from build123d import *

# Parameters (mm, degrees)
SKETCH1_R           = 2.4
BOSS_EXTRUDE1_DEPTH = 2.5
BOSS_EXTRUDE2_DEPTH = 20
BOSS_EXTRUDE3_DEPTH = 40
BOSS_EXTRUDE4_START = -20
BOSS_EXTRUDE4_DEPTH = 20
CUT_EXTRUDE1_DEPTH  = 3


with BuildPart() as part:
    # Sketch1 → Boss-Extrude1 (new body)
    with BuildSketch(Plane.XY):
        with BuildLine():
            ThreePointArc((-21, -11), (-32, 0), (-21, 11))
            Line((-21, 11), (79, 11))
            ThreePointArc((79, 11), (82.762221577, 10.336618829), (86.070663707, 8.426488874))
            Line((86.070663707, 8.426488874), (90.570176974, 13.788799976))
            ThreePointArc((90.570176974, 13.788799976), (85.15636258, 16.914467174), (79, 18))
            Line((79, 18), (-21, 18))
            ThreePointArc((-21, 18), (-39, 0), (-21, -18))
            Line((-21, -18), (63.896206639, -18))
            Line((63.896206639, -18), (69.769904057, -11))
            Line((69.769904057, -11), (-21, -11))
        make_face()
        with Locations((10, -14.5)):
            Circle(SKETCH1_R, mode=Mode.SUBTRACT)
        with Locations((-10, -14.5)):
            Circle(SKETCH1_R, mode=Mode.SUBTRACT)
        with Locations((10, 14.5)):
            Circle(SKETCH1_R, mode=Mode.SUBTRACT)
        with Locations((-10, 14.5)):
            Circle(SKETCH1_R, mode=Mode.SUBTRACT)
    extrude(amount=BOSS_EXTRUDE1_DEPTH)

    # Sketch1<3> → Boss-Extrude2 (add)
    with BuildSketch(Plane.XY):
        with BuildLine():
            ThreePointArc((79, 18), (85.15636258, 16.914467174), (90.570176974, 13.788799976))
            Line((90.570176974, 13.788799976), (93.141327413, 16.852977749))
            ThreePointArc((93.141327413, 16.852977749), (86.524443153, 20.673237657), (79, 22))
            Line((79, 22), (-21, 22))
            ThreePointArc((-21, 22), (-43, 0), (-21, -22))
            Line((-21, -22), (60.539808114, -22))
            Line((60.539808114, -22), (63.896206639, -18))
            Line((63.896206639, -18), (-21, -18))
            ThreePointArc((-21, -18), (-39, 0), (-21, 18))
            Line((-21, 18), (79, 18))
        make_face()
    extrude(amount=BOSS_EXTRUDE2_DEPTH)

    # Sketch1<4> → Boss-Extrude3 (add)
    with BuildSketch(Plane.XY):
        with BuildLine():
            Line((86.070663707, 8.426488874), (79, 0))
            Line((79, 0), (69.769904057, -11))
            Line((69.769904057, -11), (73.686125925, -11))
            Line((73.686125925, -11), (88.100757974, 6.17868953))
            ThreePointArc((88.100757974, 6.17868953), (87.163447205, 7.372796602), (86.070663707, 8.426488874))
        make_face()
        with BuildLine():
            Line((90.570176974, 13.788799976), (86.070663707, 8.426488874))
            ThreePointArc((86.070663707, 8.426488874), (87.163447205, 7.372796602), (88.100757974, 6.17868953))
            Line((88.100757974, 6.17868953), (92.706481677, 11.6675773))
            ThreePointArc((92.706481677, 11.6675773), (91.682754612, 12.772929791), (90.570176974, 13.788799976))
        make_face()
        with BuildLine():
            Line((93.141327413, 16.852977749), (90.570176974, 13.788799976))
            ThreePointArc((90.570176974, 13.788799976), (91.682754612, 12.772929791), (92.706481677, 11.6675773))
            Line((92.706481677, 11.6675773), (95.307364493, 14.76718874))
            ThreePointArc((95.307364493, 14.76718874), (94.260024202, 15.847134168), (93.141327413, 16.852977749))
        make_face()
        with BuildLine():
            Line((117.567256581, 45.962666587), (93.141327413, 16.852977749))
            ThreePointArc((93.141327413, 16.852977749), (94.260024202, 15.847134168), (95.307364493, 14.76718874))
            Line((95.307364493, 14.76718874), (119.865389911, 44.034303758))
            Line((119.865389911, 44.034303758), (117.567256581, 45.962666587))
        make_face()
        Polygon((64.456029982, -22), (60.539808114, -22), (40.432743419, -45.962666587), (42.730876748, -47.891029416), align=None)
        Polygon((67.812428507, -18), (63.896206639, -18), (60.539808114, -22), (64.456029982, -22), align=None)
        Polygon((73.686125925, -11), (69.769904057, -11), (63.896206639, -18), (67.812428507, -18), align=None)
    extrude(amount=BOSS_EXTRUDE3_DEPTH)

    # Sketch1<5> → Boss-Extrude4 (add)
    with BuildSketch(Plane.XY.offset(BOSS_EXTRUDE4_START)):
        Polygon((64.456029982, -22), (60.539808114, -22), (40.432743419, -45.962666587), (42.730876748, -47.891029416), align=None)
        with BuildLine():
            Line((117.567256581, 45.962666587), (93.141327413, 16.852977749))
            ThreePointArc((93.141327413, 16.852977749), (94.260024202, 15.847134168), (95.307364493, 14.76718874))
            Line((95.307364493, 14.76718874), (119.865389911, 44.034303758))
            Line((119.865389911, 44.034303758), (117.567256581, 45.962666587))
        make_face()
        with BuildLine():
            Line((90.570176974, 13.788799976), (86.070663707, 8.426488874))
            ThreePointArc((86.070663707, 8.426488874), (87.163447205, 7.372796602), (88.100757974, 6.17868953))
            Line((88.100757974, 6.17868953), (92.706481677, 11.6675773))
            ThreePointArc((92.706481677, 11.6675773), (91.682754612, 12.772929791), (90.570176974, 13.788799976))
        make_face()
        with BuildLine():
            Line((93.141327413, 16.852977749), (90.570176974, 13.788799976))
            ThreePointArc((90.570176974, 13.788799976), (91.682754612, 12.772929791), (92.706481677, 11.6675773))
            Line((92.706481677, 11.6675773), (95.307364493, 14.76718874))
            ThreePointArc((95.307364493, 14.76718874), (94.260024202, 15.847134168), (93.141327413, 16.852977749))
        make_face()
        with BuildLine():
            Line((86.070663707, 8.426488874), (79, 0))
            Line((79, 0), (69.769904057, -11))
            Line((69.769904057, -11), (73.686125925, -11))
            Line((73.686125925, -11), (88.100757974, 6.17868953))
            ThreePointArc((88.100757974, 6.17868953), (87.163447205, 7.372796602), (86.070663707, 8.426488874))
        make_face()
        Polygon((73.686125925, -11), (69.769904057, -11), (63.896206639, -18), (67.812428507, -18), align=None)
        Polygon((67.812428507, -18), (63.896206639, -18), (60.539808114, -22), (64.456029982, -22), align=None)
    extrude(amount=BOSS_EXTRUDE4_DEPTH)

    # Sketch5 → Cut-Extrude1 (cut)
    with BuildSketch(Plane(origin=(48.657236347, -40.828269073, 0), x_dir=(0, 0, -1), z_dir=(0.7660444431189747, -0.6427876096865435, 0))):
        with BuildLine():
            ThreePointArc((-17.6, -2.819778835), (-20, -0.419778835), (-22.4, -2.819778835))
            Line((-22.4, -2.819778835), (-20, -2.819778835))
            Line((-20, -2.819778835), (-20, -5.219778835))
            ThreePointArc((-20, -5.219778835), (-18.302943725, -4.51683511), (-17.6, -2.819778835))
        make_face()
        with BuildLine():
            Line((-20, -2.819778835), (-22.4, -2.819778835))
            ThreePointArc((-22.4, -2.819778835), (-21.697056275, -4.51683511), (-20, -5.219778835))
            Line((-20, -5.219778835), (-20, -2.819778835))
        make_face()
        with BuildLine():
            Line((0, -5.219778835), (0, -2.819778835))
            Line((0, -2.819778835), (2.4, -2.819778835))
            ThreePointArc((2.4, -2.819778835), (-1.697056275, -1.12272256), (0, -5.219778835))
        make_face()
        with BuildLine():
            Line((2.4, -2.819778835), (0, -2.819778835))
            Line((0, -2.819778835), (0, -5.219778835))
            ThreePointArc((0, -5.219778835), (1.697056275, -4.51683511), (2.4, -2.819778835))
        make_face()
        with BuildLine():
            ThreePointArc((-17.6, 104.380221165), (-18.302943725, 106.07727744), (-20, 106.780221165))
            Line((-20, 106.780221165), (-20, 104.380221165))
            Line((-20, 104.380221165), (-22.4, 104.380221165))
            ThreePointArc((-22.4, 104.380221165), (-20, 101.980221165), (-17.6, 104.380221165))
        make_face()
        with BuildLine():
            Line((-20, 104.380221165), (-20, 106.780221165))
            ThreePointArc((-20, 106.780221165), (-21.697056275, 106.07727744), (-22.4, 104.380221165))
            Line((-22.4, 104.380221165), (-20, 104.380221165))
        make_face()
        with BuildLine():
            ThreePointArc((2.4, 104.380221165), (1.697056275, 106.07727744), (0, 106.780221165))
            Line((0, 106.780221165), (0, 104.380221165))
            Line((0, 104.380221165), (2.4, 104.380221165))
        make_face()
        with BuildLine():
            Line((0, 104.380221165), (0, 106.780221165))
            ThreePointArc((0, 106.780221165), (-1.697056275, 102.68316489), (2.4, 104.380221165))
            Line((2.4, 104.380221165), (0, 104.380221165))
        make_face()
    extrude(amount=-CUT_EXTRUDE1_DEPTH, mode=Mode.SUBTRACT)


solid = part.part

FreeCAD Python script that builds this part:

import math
import FreeCAD as App
import Part
import Sketcher
Q = App.Units.Quantity


def add_polygon(sketch, points):
    """Adds a closed chain of lines whose ends are joined by coincident constraints."""
    first, n = sketch.GeometryCount, len(points)
    for a, b in zip(points, points[1:] + points[:1]):
        sketch.addGeometry(Part.LineSegment(App.Vector(*a, 0), App.Vector(*b, 0)), False)
    for i in range(n):
        sketch.addConstraint(Sketcher.Constraint("Coincident", first + i, 2, first + (i + 1) % n, 1))

doc = App.newDocument("Part")
body = doc.addObject("PartDesign::Body", "Body")

# Sketch on XY plane
sketch1 = doc.addObject("Sketcher::SketchObject", "Sketch")
body.addObject(sketch1)
sketch1.AttachmentSupport = (doc.XY_Plane, [""])
sketch1.MapMode = "FlatFace"
sketch1.addGeometry([
    Part.ArcOfCircle(Part.Circle(App.Vector(-21, 0, 0), App.Vector(0, 0, 1), 11), math.radians(90), math.radians(270)),  # 0
    Part.LineSegment(App.Vector(-21, 11, 0), App.Vector(79, 11, 0)),  # 1
    Part.ArcOfCircle(Part.Circle(App.Vector(79, 0, 0), App.Vector(0, 0, 1), 11), math.radians(50), math.radians(90)),  # 2
    Part.LineSegment(App.Vector(86.070664, 8.426489, 0), App.Vector(90.570177, 13.7888, 0)),  # 3
    Part.ArcOfCircle(Part.Circle(App.Vector(79, 0, 0), App.Vector(0, 0, 1), 18), math.radians(50), math.radians(90)),  # 4
    Part.LineSegment(App.Vector(79, 18, 0), App.Vector(-21, 18, 0)),  # 5
    Part.ArcOfCircle(Part.Circle(App.Vector(-21, 0, 0), App.Vector(0, 0, 1), 18), math.radians(90), math.radians(270)),  # 6
    Part.LineSegment(App.Vector(-21, -18, 0), App.Vector(63.896207, -18, 0)),  # 7
    Part.LineSegment(App.Vector(63.896207, -18, 0), App.Vector(69.769904, -11, 0)),  # 8
    Part.LineSegment(App.Vector(69.769904, -11, 0), App.Vector(-21, -11, 0)),  # 9
    Part.Circle(App.Vector(-10, -14.5, 0), App.Vector(0, 0, 1), 2.4),  # 10
    Part.Circle(App.Vector(10, -14.5, 0), App.Vector(0, 0, 1), 2.4),  # 11
    Part.Circle(App.Vector(-10, 14.5, 0), App.Vector(0, 0, 1), 2.4),  # 12
    Part.Circle(App.Vector(10, 14.5, 0), App.Vector(0, 0, 1), 2.4),  # 13
], False)
sketch1.addConstraint([
    Sketcher.Constraint("Tangent", 0, 1, 1, 1),
    Sketcher.Constraint("Tangent", 1, 2, 2, 2),
    Sketcher.Constraint("Coincident", 2, 1, 3, 1),
    Sketcher.Constraint("Coincident", 3, 2, 4, 1),
    Sketcher.Constraint("Tangent", 4, 2, 5, 1),
    Sketcher.Constraint("Tangent", 5, 2, 6, 1),
    Sketcher.Constraint("Tangent", 6, 2, 7, 1),
    Sketcher.Constraint("Coincident", 7, 2, 8, 1),
    Sketcher.Constraint("Coincident", 8, 2, 9, 1),
    Sketcher.Constraint("Tangent", 9, 2, 0, 2),
    Sketcher.Constraint("Horizontal", 1),
    Sketcher.Constraint("Horizontal", 5),
    Sketcher.Constraint("Horizontal", 7),
    Sketcher.Constraint("Horizontal", 9),
    Sketcher.Constraint("Coincident", 4, 3, 2, 3),
    Sketcher.Constraint("Coincident", 6, 3, 0, 3),
    Sketcher.Constraint("Equal", 0, 2),
    Sketcher.Constraint("Equal", 10, 11),
    Sketcher.Constraint("Equal", 11, 12),
    Sketcher.Constraint("Equal", 12, 13),
    Sketcher.Constraint("Symmetric", 11, 3, 12, 3, -1, 1),
    Sketcher.Constraint("Symmetric", 10, 3, 13, 3, -1, 1),
    Sketcher.Constraint("Symmetric", 10, 3, 11, 3, -2),
    Sketcher.Constraint("PointOnObject", 0, 3, -1),
    Sketcher.Constraint("Parallel", 3, 8),
    Sketcher.Constraint("Radius", 0, Q("11 mm")),
    Sketcher.Constraint("Radius", 4, Q("18 mm")),
    Sketcher.Constraint("Diameter", 10, Q("4.8 mm")),
    Sketcher.Constraint("DistanceX", 1, 1, 1, 2, Q("100 mm")),
    Sketcher.Constraint("Angle", 3, Q("50 deg")),
    Sketcher.Constraint("DistanceX", 0, 3, -1, 1, Q("21 mm")),
    Sketcher.Constraint("DistanceX", 10, 3, -1, 1, Q("10 mm")),
    Sketcher.Constraint("DistanceY", 10, 3, 12, 3, Q("29 mm")),
    Sketcher.Constraint("DistanceY", -1, 1, 3, 2, Q("13.7888 mm")),
    Sketcher.Constraint("DistanceX", 7, 1, 7, 2, Q("84.896207 mm")),
])
pad1 = doc.addObject("PartDesign::Pad", "Pad")
body.addObject(pad1)
pad1.Profile = sketch1
pad1.Length = 2.5

# Sketch on XY plane
sketch2 = doc.addObject("Sketcher::SketchObject", "Sketch001")
body.addObject(sketch2)
sketch2.AttachmentSupport = (doc.XY_Plane, [""])
sketch2.MapMode = "FlatFace"
sketch2.addGeometry([
    Part.ArcOfCircle(Part.Circle(App.Vector(79, 0, 0), App.Vector(0, 0, 1), 18), math.radians(50), math.radians(90)),  # 0
    Part.LineSegment(App.Vector(90.570177, 13.7888, 0), App.Vector(93.141327, 16.852978, 0)),  # 1
    Part.ArcOfCircle(Part.Circle(App.Vector(79, 0, 0), App.Vector(0, 0, 1), 22), math.radians(50), math.radians(90)),  # 2
    Part.LineSegment(App.Vector(79, 22, 0), App.Vector(-21, 22, 0)),  # 3
    Part.ArcOfCircle(Part.Circle(App.Vector(-21, 0, 0), App.Vector(0, 0, 1), 22), math.radians(90), math.radians(270)),  # 4
    Part.LineSegment(App.Vector(-21, -22, 0), App.Vector(60.539808, -22, 0)),  # 5
    Part.LineSegment(App.Vector(60.539808, -22, 0), App.Vector(63.896207, -18, 0)),  # 6
    Part.LineSegment(App.Vector(63.896207, -18, 0), App.Vector(-21, -18, 0)),  # 7
    Part.ArcOfCircle(Part.Circle(App.Vector(-21, 0, 0), App.Vector(0, 0, 1), 18), math.radians(90), math.radians(270)),  # 8
    Part.LineSegment(App.Vector(-21, 18, 0), App.Vector(79, 18, 0)),  # 9
], False)
sketch2.addConstraint([
    Sketcher.Constraint("Coincident", 0, 1, 1, 1),
    Sketcher.Constraint("Coincident", 1, 2, 2, 1),
    Sketcher.Constraint("Tangent", 2, 2, 3, 1),
    Sketcher.Constraint("Tangent", 3, 2, 4, 1),
    Sketcher.Constraint("Tangent", 4, 2, 5, 1),
    Sketcher.Constraint("Coincident", 5, 2, 6, 1),
    Sketcher.Constraint("Coincident", 6, 2, 7, 1),
    Sketcher.Constraint("Tangent", 7, 2, 8, 2),
    Sketcher.Constraint("Tangent", 8, 1, 9, 1),
    Sketcher.Constraint("Tangent", 9, 2, 0, 2),
    Sketcher.Constraint("Horizontal", 3),
    Sketcher.Constraint("Horizontal", 5),
    Sketcher.Constraint("Horizontal", 7),
    Sketcher.Constraint("Horizontal", 9),
    Sketcher.Constraint("Coincident", 2, 3, 0, 3),
    Sketcher.Constraint("Coincident", 8, 3, 4, 3),
    Sketcher.Constraint("Equal", 2, 4),
    Sketcher.Constraint("PointOnObject", 0, 3, -1),
    Sketcher.Constraint("Parallel", 1, 6),
    Sketcher.Constraint("Radius", 0, Q("18 mm")),
    Sketcher.Constraint("Radius", 2, Q("22 mm")),
    Sketcher.Constraint("DistanceX", 3, 2, 3, 1, Q("100 mm")),
    Sketcher.Constraint("Angle", 1, Q("50 deg")),
    Sketcher.Constraint("DistanceX", -1, 1, 0, 3, Q("79 mm")),
    Sketcher.Constraint("DistanceX", 5, 1, 5, 2, Q("81.539808 mm")),
    Sketcher.Constraint("DistanceY", -1, 1, 0, 1, Q("13.7888 mm")),
])
pad2 = doc.addObject("PartDesign::Pad", "Pad001")
body.addObject(pad2)
pad2.Profile = sketch2
pad2.Length = 20

# Sketch on XY plane
sketch3 = doc.addObject("Sketcher::SketchObject", "Sketch002")
body.addObject(sketch3)
sketch3.AttachmentSupport = (doc.XY_Plane, [""])
sketch3.MapMode = "FlatFace"
add_polygon(sketch3, [(86.070664, 8.426489), (79, 0), (69.769904, -11), (63.896207, -18), (60.539808, -22), (40.432743, -45.962667), (42.730877, -47.891029), (64.45603, -22), (67.812429, -18), (73.686126, -11), (88.100758, 6.17869), (92.706482, 11.667577), (95.307364, 14.767189), (119.86539, 44.034304), (117.567257, 45.962667), (93.141327, 16.852978), (90.570177, 13.7888)])  # lines 0-16
sketch3.addConstraint([
    Sketcher.Constraint("PointOnObject", 0, 2, -1),
    Sketcher.Constraint("Parallel", 0, 1),
    Sketcher.Constraint("Parallel", 1, 2),
    Sketcher.Constraint("Parallel", 2, 3),
    Sketcher.Constraint("Parallel", 3, 4),
    Sketcher.Constraint("Perpendicular", 4, 5),
    Sketcher.Constraint("Perpendicular", 5, 6),
    Sketcher.Constraint("Parallel", 6, 7),
    Sketcher.Constraint("Parallel", 7, 8),
    Sketcher.Constraint("Parallel", 8, 9),
    Sketcher.Constraint("Parallel", 9, 10),
    Sketcher.Constraint("Parallel", 10, 11),
    Sketcher.Constraint("Parallel", 11, 12),
    Sketcher.Constraint("Perpendicular", 12, 13),
    Sketcher.Constraint("Perpendicular", 13, 14),
    Sketcher.Constraint("Parallel", 14, 15),
    Sketcher.Constraint("Parallel", 15, 16),
    Sketcher.Constraint("Horizontal", 3, 2, 6, 2),
    Sketcher.Constraint("Horizontal", 2, 2, 7, 2),
    Sketcher.Constraint("Horizontal", 1, 2, 8, 2),
    Sketcher.Constraint("Angle", 0, Q("-130 deg")),
    Sketcher.Constraint("Distance", 0, Q("11 mm")),
    Sketcher.Constraint("Distance", 5, Q("3 mm")),
    Sketcher.Constraint("Distance", 14, Q("38 mm")),
    Sketcher.Constraint("Distance", 15, Q("4 mm")),
    Sketcher.Constraint("Distance", 16, Q("7 mm")),
    Sketcher.Constraint("DistanceX", -1, 1, 0, 2, Q("79 mm")),
    Sketcher.Constraint("DistanceY", 1, 2, -1, 1, Q("11 mm")),
    Sketcher.Constraint("DistanceY", 2, 2, -1, 1, Q("18 mm")),
    Sketcher.Constraint("DistanceY", 3, 2, -1, 1, Q("22 mm")),
    Sketcher.Constraint("DistanceY", 9, 2, 11, 2, Q("8.588499 mm")),
    Sketcher.Constraint("DistanceX", 9, 2, 13, 2, Q("29.466499 mm")),
    Sketcher.Constraint("DistanceY", 10, 2, 14, 2, Q("5.1854 mm")),
    Sketcher.Constraint("Distance", 4, Q("31.28104 mm")),
])
pad3 = doc.addObject("PartDesign::Pad", "Pad002")
body.addObject(pad3)
pad3.Profile = sketch3
pad3.Length = 40

# Sketch on XY plane
sketch4 = doc.addObject("Sketcher::SketchObject", "Sketch003")
body.addObject(sketch4)
sketch4.AttachmentSupport = (doc.XY_Plane, [""])
sketch4.MapMode = "FlatFace"
sketch4.AttachmentOffset = App.Placement(App.Vector(0, 0, -20), App.Rotation())
add_polygon(sketch4, [(60.539808, -22), (40.432743, -45.962667), (42.730877, -47.891029), (64.45603, -22), (67.812429, -18), (73.686126, -11), (88.100758, 6.17869), (92.706482, 11.667577), (95.307364, 14.767189), (119.86539, 44.034304), (117.567257, 45.962667), (93.141327, 16.852978), (90.570177, 13.7888), (86.070664, 8.426489), (79, 0), (69.769904, -11), (63.896207, -18)])  # lines 0-16
sketch4.addConstraint([
    Sketcher.Constraint("PointOnObject", 13, 2, -1),
    Sketcher.Constraint("Perpendicular", 0, 1),
    Sketcher.Constraint("Perpendicular", 1, 2),
    Sketcher.Constraint("Parallel", 2, 3),
    Sketcher.Constraint("Parallel", 3, 4),
    Sketcher.Constraint("Parallel", 4, 5),
    Sketcher.Constraint("Parallel", 5, 6),
    Sketcher.Constraint("Parallel", 6, 7),
    Sketcher.Constraint("Parallel", 7, 8),
    Sketcher.Constraint("Perpendicular", 8, 9),
    Sketcher.Constraint("Perpendicular", 9, 10),
    Sketcher.Constraint("Parallel", 10, 11),
    Sketcher.Constraint("Parallel", 11, 12),
    Sketcher.Constraint("Parallel", 12, 13),
    Sketcher.Constraint("Parallel", 13, 14),
    Sketcher.Constraint("Parallel", 14, 15),
    Sketcher.Constraint("Parallel", 15, 16),
    Sketcher.Constraint("Horizontal", 4, 2, 14, 2),
    Sketcher.Constraint("Horizontal", 3, 2, 15, 2),
    Sketcher.Constraint("Horizontal", 2, 2, 16, 2),
    Sketcher.Constraint("Angle", 0, Q("-130 deg")),
    Sketcher.Constraint("Distance", 1, Q("3 mm")),
    Sketcher.Constraint("Distance", 10, Q("38 mm")),
    Sketcher.Constraint("Distance", 11, Q("4 mm")),
    Sketcher.Constraint("Distance", 12, Q("7 mm")),
    Sketcher.Constraint("Distance", 13, Q("11 mm")),
    Sketcher.Constraint("DistanceY", 2, 2, -1, 1, Q("22 mm")),
    Sketcher.Constraint("DistanceY", 3, 2, -1, 1, Q("18 mm")),
    Sketcher.Constraint("DistanceY", 4, 2, -1, 1, Q("11 mm")),
    Sketcher.Constraint("DistanceX", -1, 1, 13, 2, Q("79 mm")),
    Sketcher.Constraint("DistanceY", 5, 2, 7, 2, Q("8.588499 mm")),
    Sketcher.Constraint("DistanceX", 5, 2, 9, 2, Q("29.466499 mm")),
    Sketcher.Constraint("DistanceY", 6, 2, 10, 2, Q("5.1854 mm")),
    Sketcher.Constraint("Distance", 0, Q("31.28104 mm")),
])
pad4 = doc.addObject("PartDesign::Pad", "Pad003")
body.addObject(pad4)
pad4.Profile = sketch4
pad4.Length = 20

# Sketch on an angled plane
sketch5 = doc.addObject("Sketcher::SketchObject", "Sketch004")
body.addObject(sketch5)
sketch5.Placement = App.Placement(App.Vector(48.657236, -40.828269, 0), App.Rotation(App.Vector(0, 0, -1), App.Vector(0.64278761, 0.766044443, 0), App.Vector(0.766044443, -0.64278761, 0), "ZXY"))
sketch5.addGeometry([
    Part.ArcOfCircle(Part.Circle(App.Vector(-20, -2.819779, 0), App.Vector(0, 0, 1), 2.4), math.radians(0), math.radians(180)),  # 0
    Part.ArcOfCircle(Part.Circle(App.Vector(-20, -2.819779, 0), App.Vector(0, 0, 1), 2.4), math.radians(180), math.radians(270)),  # 1
    Part.ArcOfCircle(Part.Circle(App.Vector(-20, -2.819779, 0), App.Vector(0, 0, 1), 2.4), math.radians(-90), math.radians(0)),  # 2
    Part.ArcOfCircle(Part.Circle(App.Vector(0, -2.819779, 0), App.Vector(0, 0, 1), 2.4), math.radians(0), math.radians(270)),  # 3
    Part.ArcOfCircle(Part.Circle(App.Vector(0, -2.819779, 0), App.Vector(0, 0, 1), 2.4), math.radians(-90), math.radians(0)),  # 4
    Part.ArcOfCircle(Part.Circle(App.Vector(-20, 104.380221, 0), App.Vector(0, 0, 1), 2.4), math.radians(0), math.radians(90)),  # 5
    Part.ArcOfCircle(Part.Circle(App.Vector(-20, 104.380221, 0), App.Vector(0, 0, 1), 2.4), math.radians(90), math.radians(180)),  # 6
    Part.ArcOfCircle(Part.Circle(App.Vector(-20, 104.380221, 0), App.Vector(0, 0, 1), 2.4), math.radians(180), math.radians(360)),  # 7
    Part.ArcOfCircle(Part.Circle(App.Vector(0, 104.380221, 0), App.Vector(0, 0, 1), 2.4), math.radians(0), math.radians(90)),  # 8
    Part.ArcOfCircle(Part.Circle(App.Vector(0, 104.380221, 0), App.Vector(0, 0, 1), 2.4), math.radians(90), math.radians(360)),  # 9
], False)
sketch5.addConstraint([
    Sketcher.Constraint("Tangent", 0, 2, 1, 1),
    Sketcher.Constraint("Tangent", 1, 2, 2, 1),
    Sketcher.Constraint("Tangent", 2, 2, 0, 1),
    Sketcher.Constraint("Tangent", 3, 1, 4, 2),
    Sketcher.Constraint("Coincident", 4, 1, 3, 2),
    Sketcher.Constraint("Tangent", 5, 2, 6, 1),
    Sketcher.Constraint("Tangent", 6, 2, 7, 1),
    Sketcher.Constraint("Tangent", 7, 2, 5, 1),
    Sketcher.Constraint("Tangent", 8, 1, 9, 2),
    Sketcher.Constraint("Coincident", 9, 1, 8, 2),
    Sketcher.Constraint("Equal", 2, 3),
    Sketcher.Constraint("Equal", 4, 5),
    Sketcher.Constraint("Equal", 7, 8),
    Sketcher.Constraint("PointOnObject", 3, 3, -2),
    Sketcher.Constraint("PointOnObject", 8, 3, -2),
    Sketcher.Constraint("PointOnObject", 4, 1, -2),
    Sketcher.Constraint("PointOnObject", 9, 1, -2),
    Sketcher.Constraint("Horizontal", 2, 3, 3, 3),
    Sketcher.Constraint("Horizontal", 7, 3, 8, 3),
    Sketcher.Constraint("Horizontal", 4, 3, 0, 2),
    Sketcher.Constraint("Horizontal", 0, 2, 2, 2),
    Sketcher.Constraint("Horizontal", 2, 2, 3, 1),
    Sketcher.Constraint("Horizontal", 9, 3, 6, 2),
    Sketcher.Constraint("Horizontal", 6, 2, 7, 2),
    Sketcher.Constraint("Horizontal", 7, 2, 8, 1),
    Sketcher.Constraint("Vertical", 2, 3, 5, 3),
    Sketcher.Constraint("Vertical", 7, 3, 1, 2),
    Sketcher.Constraint("Vertical", 1, 2, 5, 2),
    Sketcher.Constraint("Radius", 0, Q("2.4 mm")),
    Sketcher.Constraint("DistanceX", 0, 3, -1, 1, Q("20 mm")),
    Sketcher.Constraint("DistanceY", 0, 3, 5, 3, Q("107.2 mm")),
    Sketcher.Constraint("DistanceY", 0, 3, -1, 1, Q("2.819779 mm")),
])
pocket1 = doc.addObject("PartDesign::Pocket", "Pocket")
body.addObject(pocket1)
pocket1.Profile = sketch5
pocket1.Length = 3

doc.recompute()
